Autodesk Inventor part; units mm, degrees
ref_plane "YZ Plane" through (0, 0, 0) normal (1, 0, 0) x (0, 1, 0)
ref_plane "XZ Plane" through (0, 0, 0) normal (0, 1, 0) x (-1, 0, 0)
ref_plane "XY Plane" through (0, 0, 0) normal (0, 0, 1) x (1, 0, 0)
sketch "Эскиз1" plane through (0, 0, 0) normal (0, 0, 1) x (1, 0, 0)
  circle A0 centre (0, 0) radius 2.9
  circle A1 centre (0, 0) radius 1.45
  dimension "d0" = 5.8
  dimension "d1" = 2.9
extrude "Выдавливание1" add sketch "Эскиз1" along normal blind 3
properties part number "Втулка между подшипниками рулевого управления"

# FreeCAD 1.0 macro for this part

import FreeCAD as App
import Part
import Sketcher

doc = App.newDocument("Part")
body = doc.addObject("PartDesign::Body", "Body")

# Sketch on XY plane
sketch1 = doc.addObject("Sketcher::SketchObject", "Sketch")
body.addObject(sketch1)
sketch1.AttachmentSupport = (doc.XY_Plane, [""])
sketch1.MapMode = "FlatFace"
sketch1.addGeometry([
    Part.Circle(App.Vector(0, 0, 0), App.Vector(0, 0, 1), 2.9),
    Part.Circle(App.Vector(0, 0, 0), App.Vector(0, 0, 1), 1.45),
], False)
sketch1.addConstraint([
    Sketcher.Constraint("Coincident", 0, 3, -1, 1),
    Sketcher.Constraint("Coincident", 1, 3, -1, 1),
    Sketcher.Constraint("Diameter", 0, 5.8),
    Sketcher.Constraint("Diameter", 1, 2.9),
])
pad1 = doc.addObject("PartDesign::Pad", "Pad")
body.addObject(pad1)
pad1.Profile = sketch1
pad1.Length = 3

doc.recompute()
